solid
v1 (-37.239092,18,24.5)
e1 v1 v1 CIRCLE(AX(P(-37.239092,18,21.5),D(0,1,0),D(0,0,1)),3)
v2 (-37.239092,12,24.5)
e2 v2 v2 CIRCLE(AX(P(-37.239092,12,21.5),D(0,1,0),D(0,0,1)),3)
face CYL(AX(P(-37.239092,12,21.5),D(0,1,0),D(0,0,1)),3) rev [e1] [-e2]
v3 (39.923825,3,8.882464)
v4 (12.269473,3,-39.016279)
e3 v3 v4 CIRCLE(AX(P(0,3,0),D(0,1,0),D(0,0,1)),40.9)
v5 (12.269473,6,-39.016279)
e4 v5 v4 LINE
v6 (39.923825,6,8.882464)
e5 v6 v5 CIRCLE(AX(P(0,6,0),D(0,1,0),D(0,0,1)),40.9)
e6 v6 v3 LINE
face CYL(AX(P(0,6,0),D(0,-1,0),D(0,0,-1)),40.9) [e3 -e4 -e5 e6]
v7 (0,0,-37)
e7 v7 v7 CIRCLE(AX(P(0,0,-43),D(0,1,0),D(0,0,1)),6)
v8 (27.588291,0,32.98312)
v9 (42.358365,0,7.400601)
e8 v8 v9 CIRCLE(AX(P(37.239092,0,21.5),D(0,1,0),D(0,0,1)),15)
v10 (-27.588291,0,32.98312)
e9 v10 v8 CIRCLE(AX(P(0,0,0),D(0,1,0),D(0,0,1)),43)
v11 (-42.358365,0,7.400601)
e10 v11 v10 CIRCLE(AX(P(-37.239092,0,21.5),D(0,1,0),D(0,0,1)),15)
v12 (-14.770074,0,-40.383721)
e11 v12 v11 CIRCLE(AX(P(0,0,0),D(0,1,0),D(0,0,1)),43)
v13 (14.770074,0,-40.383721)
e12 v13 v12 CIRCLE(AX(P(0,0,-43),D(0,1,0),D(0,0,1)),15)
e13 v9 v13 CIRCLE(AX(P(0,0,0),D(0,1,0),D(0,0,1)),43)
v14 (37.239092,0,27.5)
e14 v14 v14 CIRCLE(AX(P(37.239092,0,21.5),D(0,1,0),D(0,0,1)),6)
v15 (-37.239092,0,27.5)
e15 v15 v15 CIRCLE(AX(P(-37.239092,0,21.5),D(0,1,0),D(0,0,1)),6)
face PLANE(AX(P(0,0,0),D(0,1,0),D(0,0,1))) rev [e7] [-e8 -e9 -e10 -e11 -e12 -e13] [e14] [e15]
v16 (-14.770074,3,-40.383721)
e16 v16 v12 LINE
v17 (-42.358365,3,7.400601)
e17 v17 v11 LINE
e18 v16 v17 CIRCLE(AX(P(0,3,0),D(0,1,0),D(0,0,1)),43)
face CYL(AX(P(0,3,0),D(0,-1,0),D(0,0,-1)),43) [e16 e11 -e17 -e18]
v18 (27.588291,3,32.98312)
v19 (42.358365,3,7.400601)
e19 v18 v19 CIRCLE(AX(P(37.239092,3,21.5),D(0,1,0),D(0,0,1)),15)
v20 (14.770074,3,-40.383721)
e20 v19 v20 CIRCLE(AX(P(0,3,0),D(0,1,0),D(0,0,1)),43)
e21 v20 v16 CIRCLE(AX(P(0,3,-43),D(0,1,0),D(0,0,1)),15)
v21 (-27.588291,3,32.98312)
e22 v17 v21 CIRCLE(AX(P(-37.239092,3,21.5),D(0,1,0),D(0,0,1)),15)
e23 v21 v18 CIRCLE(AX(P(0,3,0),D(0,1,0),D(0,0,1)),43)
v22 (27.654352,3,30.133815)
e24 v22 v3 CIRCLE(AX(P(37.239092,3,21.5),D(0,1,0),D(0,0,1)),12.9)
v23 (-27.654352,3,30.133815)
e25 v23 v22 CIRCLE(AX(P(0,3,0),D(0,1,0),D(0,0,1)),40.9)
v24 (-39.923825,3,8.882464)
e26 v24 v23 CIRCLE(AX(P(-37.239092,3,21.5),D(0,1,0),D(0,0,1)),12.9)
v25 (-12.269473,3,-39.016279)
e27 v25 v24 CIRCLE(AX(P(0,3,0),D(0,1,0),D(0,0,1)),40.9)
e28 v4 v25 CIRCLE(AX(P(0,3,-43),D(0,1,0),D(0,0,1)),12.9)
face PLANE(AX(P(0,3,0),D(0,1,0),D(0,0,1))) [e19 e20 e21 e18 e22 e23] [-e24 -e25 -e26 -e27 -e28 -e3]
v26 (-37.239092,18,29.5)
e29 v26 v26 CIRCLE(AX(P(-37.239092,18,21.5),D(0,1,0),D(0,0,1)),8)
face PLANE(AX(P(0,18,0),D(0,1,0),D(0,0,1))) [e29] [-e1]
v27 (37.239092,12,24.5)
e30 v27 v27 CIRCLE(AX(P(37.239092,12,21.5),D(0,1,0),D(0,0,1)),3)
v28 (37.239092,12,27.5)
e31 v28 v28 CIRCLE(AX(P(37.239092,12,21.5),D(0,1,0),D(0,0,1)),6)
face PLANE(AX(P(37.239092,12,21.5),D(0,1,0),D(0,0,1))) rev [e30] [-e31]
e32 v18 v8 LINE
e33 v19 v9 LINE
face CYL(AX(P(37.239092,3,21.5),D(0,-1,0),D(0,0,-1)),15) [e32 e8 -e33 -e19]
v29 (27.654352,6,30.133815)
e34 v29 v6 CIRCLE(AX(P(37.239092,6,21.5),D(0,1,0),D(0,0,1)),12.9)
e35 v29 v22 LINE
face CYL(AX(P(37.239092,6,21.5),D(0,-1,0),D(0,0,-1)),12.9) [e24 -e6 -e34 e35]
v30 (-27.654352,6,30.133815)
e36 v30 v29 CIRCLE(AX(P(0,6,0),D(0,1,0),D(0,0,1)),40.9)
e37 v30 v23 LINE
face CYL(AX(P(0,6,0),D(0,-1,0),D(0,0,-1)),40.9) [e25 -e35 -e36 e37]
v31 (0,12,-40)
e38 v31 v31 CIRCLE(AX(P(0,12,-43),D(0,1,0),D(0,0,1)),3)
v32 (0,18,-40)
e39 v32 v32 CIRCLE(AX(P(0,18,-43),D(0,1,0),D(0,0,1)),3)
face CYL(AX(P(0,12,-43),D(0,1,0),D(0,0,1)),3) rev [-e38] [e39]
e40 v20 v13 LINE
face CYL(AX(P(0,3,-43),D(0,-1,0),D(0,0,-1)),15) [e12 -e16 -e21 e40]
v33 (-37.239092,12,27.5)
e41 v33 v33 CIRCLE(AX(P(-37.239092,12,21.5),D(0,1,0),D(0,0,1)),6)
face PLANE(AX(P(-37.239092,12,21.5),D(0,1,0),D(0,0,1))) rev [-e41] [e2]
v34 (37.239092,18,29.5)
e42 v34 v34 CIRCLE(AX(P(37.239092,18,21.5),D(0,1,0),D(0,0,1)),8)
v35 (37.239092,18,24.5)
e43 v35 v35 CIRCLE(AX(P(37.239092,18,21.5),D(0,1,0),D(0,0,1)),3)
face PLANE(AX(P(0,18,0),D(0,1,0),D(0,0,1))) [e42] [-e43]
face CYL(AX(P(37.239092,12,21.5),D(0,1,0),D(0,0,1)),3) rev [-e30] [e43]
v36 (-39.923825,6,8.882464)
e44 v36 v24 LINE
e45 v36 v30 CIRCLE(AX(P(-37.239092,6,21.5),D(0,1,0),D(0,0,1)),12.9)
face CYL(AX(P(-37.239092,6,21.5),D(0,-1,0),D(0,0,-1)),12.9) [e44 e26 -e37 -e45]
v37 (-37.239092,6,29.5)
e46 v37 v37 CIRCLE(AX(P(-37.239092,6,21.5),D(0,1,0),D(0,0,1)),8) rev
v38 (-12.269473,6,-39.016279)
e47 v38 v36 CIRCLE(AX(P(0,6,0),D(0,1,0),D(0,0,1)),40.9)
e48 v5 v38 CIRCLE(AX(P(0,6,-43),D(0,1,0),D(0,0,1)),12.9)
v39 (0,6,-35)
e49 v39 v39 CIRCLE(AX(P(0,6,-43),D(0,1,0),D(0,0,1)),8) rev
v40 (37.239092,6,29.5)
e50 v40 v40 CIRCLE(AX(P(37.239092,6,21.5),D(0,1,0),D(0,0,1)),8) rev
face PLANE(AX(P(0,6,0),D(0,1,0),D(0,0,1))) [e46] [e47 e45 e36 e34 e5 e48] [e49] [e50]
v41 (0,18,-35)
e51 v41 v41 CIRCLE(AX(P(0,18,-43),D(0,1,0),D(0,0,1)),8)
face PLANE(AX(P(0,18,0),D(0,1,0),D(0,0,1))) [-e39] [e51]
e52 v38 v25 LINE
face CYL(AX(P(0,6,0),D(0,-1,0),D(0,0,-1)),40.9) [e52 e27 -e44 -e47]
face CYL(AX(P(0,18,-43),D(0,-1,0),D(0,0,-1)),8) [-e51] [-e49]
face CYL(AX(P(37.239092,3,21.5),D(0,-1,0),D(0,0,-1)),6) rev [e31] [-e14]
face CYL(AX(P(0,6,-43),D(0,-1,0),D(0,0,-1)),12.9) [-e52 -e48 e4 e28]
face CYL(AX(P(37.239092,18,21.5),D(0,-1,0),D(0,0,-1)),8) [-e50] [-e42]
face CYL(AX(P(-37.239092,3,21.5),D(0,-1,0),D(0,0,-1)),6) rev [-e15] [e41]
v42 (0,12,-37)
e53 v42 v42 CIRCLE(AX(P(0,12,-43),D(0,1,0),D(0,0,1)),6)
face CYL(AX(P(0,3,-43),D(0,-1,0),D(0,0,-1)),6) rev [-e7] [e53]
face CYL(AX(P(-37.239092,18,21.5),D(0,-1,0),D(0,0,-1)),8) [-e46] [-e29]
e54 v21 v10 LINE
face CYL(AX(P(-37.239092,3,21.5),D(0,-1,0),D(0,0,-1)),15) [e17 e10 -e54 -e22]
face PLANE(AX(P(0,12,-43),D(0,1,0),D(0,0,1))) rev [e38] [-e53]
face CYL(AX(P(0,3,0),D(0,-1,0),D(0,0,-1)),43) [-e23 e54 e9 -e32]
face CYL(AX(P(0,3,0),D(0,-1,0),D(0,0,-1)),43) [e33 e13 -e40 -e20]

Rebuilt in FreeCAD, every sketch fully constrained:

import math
import FreeCAD as App
import Part
import Sketcher

V = App.Vector
Q = App.Units.Quantity

doc = App.newDocument("Part")
body = doc.addObject("PartDesign::Body", "Body")

# Sketch on XZ plane
sketch1 = body.newObject("Sketcher::SketchObject", "Sketch")
sketch1.AttachmentSupport = (doc.getObject("XZ_Plane"), [""])
sketch1.MapMode = "FlatFace"
sketch1.addGeometry([
    Part.ArcOfCircle(Part.Circle(V(0, 0, 0), V(0, 0, 1), 43), math.radians(-70), math.radians(10)),  # 0
    Part.ArcOfCircle(Part.Circle(V(0, -43, 0), V(0, 0, 1), 15), math.radians(170), math.radians(370)),  # 1
    Part.ArcOfCircle(Part.Circle(V(0, 0, 0), V(0, 0, 1), 43), math.radians(170), math.radians(250)),  # 2
    Part.ArcOfCircle(Part.Circle(V(-37, 22, 0), V(0, 0, 1), 15), math.radians(50), math.radians(250)),  # 3
    Part.ArcOfCircle(Part.Circle(V(0, 0, 0), V(0, 0, 1), 43), math.radians(50), math.radians(130)),  # 4
    Part.ArcOfCircle(Part.Circle(V(37, 22, 0), V(0, 0, 1), 15), math.radians(-70), math.radians(130)),  # 5
    Part.Circle(V(-37, 22, 0), V(0, 0, 1), 6),  # 6
    Part.Circle(V(37, 22, 0), V(0, 0, 1), 6),  # 7
    Part.Circle(V(0, -43, 0), V(0, 0, 1), 6),  # 8
], False)
sketch1.addConstraint([
    Sketcher.Constraint("Coincident", 0, 1, 1, 2),
    Sketcher.Constraint("Coincident", 1, 1, 2, 2),
    Sketcher.Constraint("Coincident", 2, 1, 3, 2),
    Sketcher.Constraint("Coincident", 3, 1, 4, 2),
    Sketcher.Constraint("Coincident", 4, 1, 5, 2),
    Sketcher.Constraint("Coincident", 5, 1, 0, 2),
    Sketcher.Constraint("Coincident", 0, 3, -1, 1),
    Sketcher.Constraint("Coincident", 2, 3, -1, 1),
    Sketcher.Constraint("Coincident", 4, 3, -1, 1),
    Sketcher.Constraint("Coincident", 6, 3, 3, 3),
    Sketcher.Constraint("Coincident", 7, 3, 5, 3),
    Sketcher.Constraint("Coincident", 8, 3, 1, 3),
    Sketcher.Constraint("Equal", 0, 2),
    Sketcher.Constraint("Equal", 1, 3),
    Sketcher.Constraint("Equal", 2, 4),
    Sketcher.Constraint("Equal", 3, 5),
    Sketcher.Constraint("Equal", 6, 7),
    Sketcher.Constraint("Equal", 7, 8),
    Sketcher.Constraint("Symmetric", 3, 3, 5, 3, -2),
    Sketcher.Constraint("PointOnObject", 1, 3, -2),
    Sketcher.Constraint("Diameter", 6, Q("12 mm")),
    Sketcher.Constraint("Radius", 0, Q("43 mm")),
    Sketcher.Constraint("Radius", 1, Q("15 mm")),
    Sketcher.Constraint("DistanceY", 1, 3, -1, 1, Q("43 mm")),
    Sketcher.Constraint("DistanceY", -1, 1, 3, 3, Q("21.5 mm")),
    Sketcher.Constraint("DistanceY", -1, 1, 2, 1, Q("7.400601 mm")),
])
pad1 = body.newObject("PartDesign::Pad", "Pad")
pad1.Profile = sketch1
pad1.Length = 3
pad1.Reversed = True

# Sketch on XZ plane
sketch2 = body.newObject("Sketcher::SketchObject", "Sketch001")
sketch2.AttachmentSupport = (doc.getObject("XZ_Plane"), [""])
sketch2.MapMode = "FlatFace"
sketch2.addGeometry([
    Part.Circle(V(0, -43, 0), V(0, 0, 1), 8),  # 0
    Part.Circle(V(0, -43, 0), V(0, 0, 1), 6),  # 1
    Part.Circle(V(37, 22, 0), V(0, 0, 1), 8),  # 2
    Part.Circle(V(37, 22, 0), V(0, 0, 1), 6),  # 3
    Part.Circle(V(-37, 22, 0), V(0, 0, 1), 8),  # 4
    Part.Circle(V(-37, 22, 0), V(0, 0, 1), 6),  # 5
], False)
sketch2.addConstraint([
    Sketcher.Constraint("Coincident", 1, 3, 0, 3),
    Sketcher.Constraint("Coincident", 3, 3, 2, 3),
    Sketcher.Constraint("Coincident", 5, 3, 4, 3),
    Sketcher.Constraint("Equal", 0, 2),
    Sketcher.Constraint("Equal", 1, 3),
    Sketcher.Constraint("Equal", 2, 4),
    Sketcher.Constraint("Equal", 3, 5),
    Sketcher.Constraint("Symmetric", 2, 3, 4, 3, -2),
    Sketcher.Constraint("PointOnObject", 0, 3, -2),
    Sketcher.Constraint("Diameter", 0, Q("16 mm")),
    Sketcher.Constraint("Diameter", 1, Q("12 mm")),
    Sketcher.Constraint("DistanceY", 0, 3, -1, 1, Q("43 mm")),
    Sketcher.Constraint("DistanceY", -1, 1, 2, 3, Q("21.5 mm")),
    Sketcher.Constraint("DistanceX", -1, 1, 2, 3, Q("37.239092 mm")),
])
pad2 = body.newObject("PartDesign::Pad", "Pad001")
pad2.Profile = sketch2
pad2.Length = 18
pad2.Reversed = True

# Sketch on XZ plane
sketch3 = body.newObject("Sketcher::SketchObject", "Sketch002")
sketch3.AttachmentSupport = (doc.getObject("XZ_Plane"), [""])
sketch3.MapMode = "FlatFace"
sketch3.AttachmentOffset = App.Placement(V(0, 0, -3), App.Rotation())
sketch3.addGeometry([
    Part.ArcOfCircle(Part.Circle(V(0, 0, 0), V(0, 0, 1), 41), math.radians(-73), math.radians(13)),  # 0
    Part.ArcOfCircle(Part.Circle(V(0, -43, 0), V(0, 0, 1), 13), math.radians(162), math.radians(378)),  # 1
    Part.ArcOfCircle(Part.Circle(V(0, 0, 0), V(0, 0, 1), 41), math.radians(167), math.radians(253)),  # 2
    Part.ArcOfCircle(Part.Circle(V(-37, 22, 0), V(0, 0, 1), 13), math.radians(42), math.radians(258)),  # 3
    Part.ArcOfCircle(Part.Circle(V(0, 0, 0), V(0, 0, 1), 41), math.radians(47), math.radians(133)),  # 4
    Part.ArcOfCircle(Part.Circle(V(37, 22, 0), V(0, 0, 1), 13), math.radians(-78), math.radians(138)),  # 5
    Part.Circle(V(-37, 22, 0), V(0, 0, 1), 8),  # 6
    Part.Circle(V(37, 22, 0), V(0, 0, 1), 8),  # 7
    Part.Circle(V(0, -43, 0), V(0, 0, 1), 8),  # 8
], False)
sketch3.addConstraint([
    Sketcher.Constraint("Coincident", 0, 1, 1, 2),
    Sketcher.Constraint("Coincident", 1, 1, 2, 2),
    Sketcher.Constraint("Coincident", 2, 1, 3, 2),
    Sketcher.Constraint("Coincident", 3, 1, 4, 2),
    Sketcher.Constraint("Coincident", 4, 1, 5, 2),
    Sketcher.Constraint("Coincident", 5, 1, 0, 2),
    Sketcher.Constraint("Coincident", 0, 3, -1, 1),
    Sketcher.Constraint("Coincident", 2, 3, -1, 1),
    Sketcher.Constraint("Coincident", 4, 3, -1, 1),
    Sketcher.Constraint("Coincident", 6, 3, 3, 3),
    Sketcher.Constraint("Coincident", 7, 3, 5, 3),
    Sketcher.Constraint("Coincident", 8, 3, 1, 3),
    Sketcher.Constraint("Equal", 0, 2),
    Sketcher.Constraint("Equal", 1, 3),
    Sketcher.Constraint("Equal", 2, 4),
    Sketcher.Constraint("Equal", 3, 5),
    Sketcher.Constraint("Equal", 6, 7),
    Sketcher.Constraint("Equal", 7, 8),
    Sketcher.Constraint("Symmetric", 3, 3, 5, 3, -2),
    Sketcher.Constraint("PointOnObject", 1, 3, -2),
    Sketcher.Constraint("Diameter", 6, Q("16 mm")),
    Sketcher.Constraint("Radius", 0, Q("40.9 mm")),
    Sketcher.Constraint("Radius", 1, Q("12.9 mm")),
    Sketcher.Constraint("DistanceY", 1, 3, -1, 1, Q("43 mm")),
    Sketcher.Constraint("DistanceY", -1, 1, 3, 3, Q("21.5 mm")),
    Sketcher.Constraint("DistanceX", 3, 3, 3, 1, Q("9.58474 mm")),
])
pad3 = body.newObject("PartDesign::Pad", "Pad002")
pad3.Profile = sketch3
pad3.Length = 3
pad3.Reversed = True

# Sketch on XZ plane
sketch4 = body.newObject("Sketcher::SketchObject", "Sketch003")
sketch4.AttachmentSupport = (doc.getObject("XZ_Plane"), [""])
sketch4.MapMode = "FlatFace"
sketch4.AttachmentOffset = App.Placement(V(0, 0, -18), App.Rotation())
sketch4.addGeometry([
    Part.Circle(V(-37.2, 21.5, 0), V(0, 0, 1), 6),  # 0
    Part.Circle(V(-37.2, 21.5, 0), V(0, 0, 1), 3),  # 1
    Part.Circle(V(0, -43, 0), V(0, 0, 1), 6),  # 2
    Part.Circle(V(0, -43, 0), V(0, 0, 1), 3),  # 3
    Part.Circle(V(37.2, 21.5, 0), V(0, 0, 1), 6),  # 4
    Part.Circle(V(37.2, 21.5, 0), V(0, 0, 1), 3),  # 5
], False)
sketch4.addConstraint([
    Sketcher.Constraint("Coincident", 1, 3, 0, 3),
    Sketcher.Constraint("Coincident", 3, 3, 2, 3),
    Sketcher.Constraint("Coincident", 5, 3, 4, 3),
    Sketcher.Constraint("Equal", 0, 2),
    Sketcher.Constraint("Equal", 1, 3),
    Sketcher.Constraint("Equal", 2, 4),
    Sketcher.Constraint("Equal", 3, 5),
    Sketcher.Constraint("Symmetric", 0, 3, 4, 3, -2),
    Sketcher.Constraint("PointOnObject", 2, 3, -2),
    Sketcher.Constraint("Diameter", 0, Q("12 mm")),
    Sketcher.Constraint("Diameter", 1, Q("6 mm")),
    Sketcher.Constraint("DistanceY", 2, 3, -1, 1, Q("43 mm")),
    Sketcher.Constraint("DistanceY", -1, 1, 0, 3, Q("21.5 mm")),
    Sketcher.Constraint("DistanceX", 0, 3, -1, 1, Q("37.239092 mm")),
])
pad4 = body.newObject("PartDesign::Pad", "Pad003")
pad4.Profile = sketch4
pad4.Length = 6

doc.recompute()
